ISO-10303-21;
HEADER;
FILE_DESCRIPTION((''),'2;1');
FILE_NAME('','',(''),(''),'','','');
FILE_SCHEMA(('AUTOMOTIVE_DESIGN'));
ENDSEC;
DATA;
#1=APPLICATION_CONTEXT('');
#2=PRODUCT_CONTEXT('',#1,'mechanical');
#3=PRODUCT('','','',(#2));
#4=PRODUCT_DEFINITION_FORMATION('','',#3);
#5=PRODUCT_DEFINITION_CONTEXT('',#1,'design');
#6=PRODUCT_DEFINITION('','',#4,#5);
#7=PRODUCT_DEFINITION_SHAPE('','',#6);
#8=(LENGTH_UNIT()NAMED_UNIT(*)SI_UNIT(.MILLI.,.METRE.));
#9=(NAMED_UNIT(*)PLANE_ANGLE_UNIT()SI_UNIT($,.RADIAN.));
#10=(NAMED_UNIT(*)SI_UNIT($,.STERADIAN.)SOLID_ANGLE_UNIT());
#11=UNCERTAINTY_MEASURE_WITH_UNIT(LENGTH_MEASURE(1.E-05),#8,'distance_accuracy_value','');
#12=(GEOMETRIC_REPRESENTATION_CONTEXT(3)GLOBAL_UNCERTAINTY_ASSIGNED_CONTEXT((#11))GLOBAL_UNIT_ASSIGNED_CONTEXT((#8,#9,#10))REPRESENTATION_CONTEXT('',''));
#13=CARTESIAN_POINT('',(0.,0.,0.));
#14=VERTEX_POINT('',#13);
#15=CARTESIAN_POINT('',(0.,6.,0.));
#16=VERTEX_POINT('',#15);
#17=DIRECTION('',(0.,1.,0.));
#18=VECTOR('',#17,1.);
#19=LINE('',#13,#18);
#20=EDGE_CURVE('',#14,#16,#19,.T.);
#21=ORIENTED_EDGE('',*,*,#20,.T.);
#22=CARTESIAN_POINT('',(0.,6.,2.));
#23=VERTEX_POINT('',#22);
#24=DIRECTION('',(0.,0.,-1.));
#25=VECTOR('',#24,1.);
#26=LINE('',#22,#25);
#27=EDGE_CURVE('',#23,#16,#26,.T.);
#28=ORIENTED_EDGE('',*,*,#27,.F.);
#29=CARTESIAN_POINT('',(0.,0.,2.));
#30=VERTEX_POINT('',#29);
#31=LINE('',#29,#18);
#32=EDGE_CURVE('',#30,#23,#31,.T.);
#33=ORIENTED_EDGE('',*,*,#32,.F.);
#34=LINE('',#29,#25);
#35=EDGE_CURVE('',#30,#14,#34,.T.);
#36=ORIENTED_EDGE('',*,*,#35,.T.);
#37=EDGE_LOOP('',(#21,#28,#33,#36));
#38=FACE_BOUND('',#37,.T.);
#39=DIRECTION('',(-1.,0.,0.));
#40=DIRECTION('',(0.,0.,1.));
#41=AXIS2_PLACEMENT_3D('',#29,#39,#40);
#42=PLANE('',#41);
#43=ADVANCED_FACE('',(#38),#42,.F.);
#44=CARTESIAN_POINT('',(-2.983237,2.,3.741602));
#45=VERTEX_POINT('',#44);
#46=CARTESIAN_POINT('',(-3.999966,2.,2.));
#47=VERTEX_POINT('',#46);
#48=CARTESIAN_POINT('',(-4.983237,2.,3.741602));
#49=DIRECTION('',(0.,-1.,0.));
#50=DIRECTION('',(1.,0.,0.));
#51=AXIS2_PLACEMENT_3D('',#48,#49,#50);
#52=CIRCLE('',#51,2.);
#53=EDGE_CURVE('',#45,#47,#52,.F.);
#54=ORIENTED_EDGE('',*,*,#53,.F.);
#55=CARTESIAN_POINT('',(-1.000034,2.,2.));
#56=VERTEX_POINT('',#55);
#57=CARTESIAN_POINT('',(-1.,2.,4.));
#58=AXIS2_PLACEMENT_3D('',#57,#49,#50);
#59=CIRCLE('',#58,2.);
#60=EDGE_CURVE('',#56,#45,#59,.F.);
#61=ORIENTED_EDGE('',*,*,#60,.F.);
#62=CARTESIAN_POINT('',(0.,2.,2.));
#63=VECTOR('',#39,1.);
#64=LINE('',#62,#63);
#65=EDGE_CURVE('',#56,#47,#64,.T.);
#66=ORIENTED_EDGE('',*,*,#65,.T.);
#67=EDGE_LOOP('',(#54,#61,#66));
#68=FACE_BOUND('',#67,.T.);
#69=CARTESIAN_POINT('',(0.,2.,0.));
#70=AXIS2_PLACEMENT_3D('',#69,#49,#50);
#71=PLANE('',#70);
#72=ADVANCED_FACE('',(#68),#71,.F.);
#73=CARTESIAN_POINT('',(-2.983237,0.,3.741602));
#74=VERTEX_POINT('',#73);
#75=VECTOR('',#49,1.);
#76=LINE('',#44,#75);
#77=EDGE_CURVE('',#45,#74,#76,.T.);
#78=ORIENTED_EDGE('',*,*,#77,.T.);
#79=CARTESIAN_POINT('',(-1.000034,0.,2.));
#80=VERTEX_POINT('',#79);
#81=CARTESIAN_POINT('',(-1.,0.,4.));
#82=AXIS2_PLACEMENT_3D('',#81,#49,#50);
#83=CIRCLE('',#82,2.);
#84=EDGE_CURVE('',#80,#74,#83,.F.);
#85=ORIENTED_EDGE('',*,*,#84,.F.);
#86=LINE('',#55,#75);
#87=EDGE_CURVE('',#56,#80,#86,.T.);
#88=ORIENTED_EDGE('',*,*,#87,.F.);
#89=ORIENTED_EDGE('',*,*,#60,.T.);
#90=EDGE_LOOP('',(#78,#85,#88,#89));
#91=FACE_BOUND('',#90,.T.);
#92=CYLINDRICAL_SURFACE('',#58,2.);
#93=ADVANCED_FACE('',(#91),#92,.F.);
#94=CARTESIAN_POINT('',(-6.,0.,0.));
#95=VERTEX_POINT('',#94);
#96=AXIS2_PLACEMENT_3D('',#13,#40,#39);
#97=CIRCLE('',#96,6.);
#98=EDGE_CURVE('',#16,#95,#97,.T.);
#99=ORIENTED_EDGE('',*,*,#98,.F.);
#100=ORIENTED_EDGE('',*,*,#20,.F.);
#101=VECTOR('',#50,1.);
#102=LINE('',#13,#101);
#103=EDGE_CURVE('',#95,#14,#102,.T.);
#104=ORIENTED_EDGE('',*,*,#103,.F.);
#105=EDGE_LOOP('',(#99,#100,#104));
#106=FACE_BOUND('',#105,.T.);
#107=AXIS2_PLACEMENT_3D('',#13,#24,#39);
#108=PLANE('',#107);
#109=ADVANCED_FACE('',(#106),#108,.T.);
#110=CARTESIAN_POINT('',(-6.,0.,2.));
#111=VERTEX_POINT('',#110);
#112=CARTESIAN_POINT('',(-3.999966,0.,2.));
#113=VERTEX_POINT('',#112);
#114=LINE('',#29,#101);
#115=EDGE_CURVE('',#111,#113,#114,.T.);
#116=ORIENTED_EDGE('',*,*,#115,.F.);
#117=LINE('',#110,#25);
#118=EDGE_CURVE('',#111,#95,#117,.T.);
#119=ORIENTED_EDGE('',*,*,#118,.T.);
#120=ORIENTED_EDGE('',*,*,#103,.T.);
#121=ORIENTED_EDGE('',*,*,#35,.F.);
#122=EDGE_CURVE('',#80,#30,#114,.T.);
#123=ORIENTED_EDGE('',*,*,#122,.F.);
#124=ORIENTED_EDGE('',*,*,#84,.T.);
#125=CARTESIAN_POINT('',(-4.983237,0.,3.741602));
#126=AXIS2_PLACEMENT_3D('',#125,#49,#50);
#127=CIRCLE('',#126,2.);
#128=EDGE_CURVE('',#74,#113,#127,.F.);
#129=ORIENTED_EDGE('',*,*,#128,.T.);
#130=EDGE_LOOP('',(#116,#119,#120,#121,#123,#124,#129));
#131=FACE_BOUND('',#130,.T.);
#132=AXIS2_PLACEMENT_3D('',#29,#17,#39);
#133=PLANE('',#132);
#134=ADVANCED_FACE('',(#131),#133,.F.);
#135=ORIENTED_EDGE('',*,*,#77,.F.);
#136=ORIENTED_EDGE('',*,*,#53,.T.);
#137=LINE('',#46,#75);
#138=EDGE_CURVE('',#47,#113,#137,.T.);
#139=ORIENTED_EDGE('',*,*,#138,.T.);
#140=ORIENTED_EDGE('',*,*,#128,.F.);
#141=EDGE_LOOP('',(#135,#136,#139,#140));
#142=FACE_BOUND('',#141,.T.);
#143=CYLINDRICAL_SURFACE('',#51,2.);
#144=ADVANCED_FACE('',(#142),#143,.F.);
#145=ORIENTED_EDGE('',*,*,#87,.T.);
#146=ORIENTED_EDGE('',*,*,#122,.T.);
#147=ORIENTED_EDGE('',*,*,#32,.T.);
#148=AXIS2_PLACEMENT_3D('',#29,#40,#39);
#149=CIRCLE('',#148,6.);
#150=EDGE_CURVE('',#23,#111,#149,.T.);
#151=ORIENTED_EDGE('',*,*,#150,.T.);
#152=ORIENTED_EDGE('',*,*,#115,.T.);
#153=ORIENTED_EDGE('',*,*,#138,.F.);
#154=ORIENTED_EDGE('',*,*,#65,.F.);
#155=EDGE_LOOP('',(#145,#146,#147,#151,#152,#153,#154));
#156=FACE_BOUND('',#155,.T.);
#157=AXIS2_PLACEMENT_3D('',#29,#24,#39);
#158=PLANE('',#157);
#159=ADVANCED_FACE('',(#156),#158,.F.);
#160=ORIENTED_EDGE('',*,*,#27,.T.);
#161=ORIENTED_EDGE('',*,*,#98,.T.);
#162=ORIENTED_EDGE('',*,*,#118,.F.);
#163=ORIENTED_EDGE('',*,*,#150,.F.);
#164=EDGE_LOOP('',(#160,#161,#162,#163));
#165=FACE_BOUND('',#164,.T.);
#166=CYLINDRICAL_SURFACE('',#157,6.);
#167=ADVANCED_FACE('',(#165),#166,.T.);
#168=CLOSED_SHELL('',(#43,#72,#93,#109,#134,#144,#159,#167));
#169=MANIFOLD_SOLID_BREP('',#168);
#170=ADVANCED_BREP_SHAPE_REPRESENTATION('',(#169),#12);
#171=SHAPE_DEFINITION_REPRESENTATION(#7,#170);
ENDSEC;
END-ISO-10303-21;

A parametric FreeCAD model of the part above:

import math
import FreeCAD as App
import Part
import Sketcher

V = App.Vector
Q = App.Units.Quantity

doc = App.newDocument("Part")
body = doc.addObject("PartDesign::Body", "Body")

sketch1 = body.newObject("Sketcher::SketchObject", "Sketch")
sketch1.AttachmentSupport = (doc.getObject("XY_Plane"), [""])
sketch1.MapMode = "FlatFace"
sketch1.addGeometry([
    Part.LineSegment(V(0, 0, 0), V(0, 6, 0)),
    Part.ArcOfCircle(Part.Circle(V(0, 0, 0), V(0, 0, 1), 6), math.radians(90), math.radians(180)),
    Part.LineSegment(V(-6, 0, 0), V(0, 0, 0)),
], False)
sketch1.addConstraint([
    Sketcher.Constraint("Coincident", 0, 2, 1, 1),
    Sketcher.Constraint("Coincident", 1, 2, 2, 1),
    Sketcher.Constraint("Coincident", 2, 2, 0, 1),
    Sketcher.Constraint("Vertical", 0),
    Sketcher.Constraint("Horizontal", 2),
    Sketcher.Constraint("Coincident", 1, 3, -1, 1),
    Sketcher.Constraint("Coincident", 2, 2, -1, 1),
    Sketcher.Constraint("Radius", 1, Q("6 mm")),
])
pad1 = body.newObject("PartDesign::Pad", "Pad")
pad1.Profile = sketch1
pad1.Length = 2

sketch2 = body.newObject("Sketcher::SketchObject", "Sketch001")
sketch2.AttachmentSupport = (doc.getObject("XZ_Plane"), [""])
sketch2.MapMode = "FlatFace"
sketch2.addGeometry([
    Part.ArcOfCircle(Part.Circle(V(-5, 3.7, 0), V(0, 0, 1), 2), math.radians(-61), math.radians(0)),
    Part.LineSegment(V(-4, 2, 0), V(-1, 2, 0)),
    Part.ArcOfCircle(Part.Circle(V(-1, 4, 0), V(0, 0, 1), 2), math.radians(-173), math.radians(-90)),
], False)
sketch2.addConstraint([
    Sketcher.Constraint("Coincident", 0, 1, 1, 1),
    Sketcher.Constraint("Coincident", 1, 2, 2, 2),
    Sketcher.Constraint("Coincident", 2, 1, 0, 2),
    Sketcher.Constraint("Horizontal", 1),
    Sketcher.Constraint("Equal", 0, 2),
    Sketcher.Constraint("Horizontal", 0, 3, 2, 1),
    Sketcher.Constraint("Radius", 0, Q("2 mm")),
    Sketcher.Constraint("DistanceX", 2, 3, -1, 1, Q("1 mm")),
    Sketcher.Constraint("DistanceY", -1, 1, 2, 3, Q("4 mm")),
    Sketcher.Constraint("DistanceX", 1, 1, 1, 2, Q("2.999932 mm")),
    Sketcher.Constraint("DistanceX", 0, 3, 0, 1, Q("0.983271 mm")),
])
pad2 = body.newObject("PartDesign::Pad", "Pad001")
pad2.Profile = sketch2
pad2.Length = 2
pad2.Reversed = True

doc.recompute()
